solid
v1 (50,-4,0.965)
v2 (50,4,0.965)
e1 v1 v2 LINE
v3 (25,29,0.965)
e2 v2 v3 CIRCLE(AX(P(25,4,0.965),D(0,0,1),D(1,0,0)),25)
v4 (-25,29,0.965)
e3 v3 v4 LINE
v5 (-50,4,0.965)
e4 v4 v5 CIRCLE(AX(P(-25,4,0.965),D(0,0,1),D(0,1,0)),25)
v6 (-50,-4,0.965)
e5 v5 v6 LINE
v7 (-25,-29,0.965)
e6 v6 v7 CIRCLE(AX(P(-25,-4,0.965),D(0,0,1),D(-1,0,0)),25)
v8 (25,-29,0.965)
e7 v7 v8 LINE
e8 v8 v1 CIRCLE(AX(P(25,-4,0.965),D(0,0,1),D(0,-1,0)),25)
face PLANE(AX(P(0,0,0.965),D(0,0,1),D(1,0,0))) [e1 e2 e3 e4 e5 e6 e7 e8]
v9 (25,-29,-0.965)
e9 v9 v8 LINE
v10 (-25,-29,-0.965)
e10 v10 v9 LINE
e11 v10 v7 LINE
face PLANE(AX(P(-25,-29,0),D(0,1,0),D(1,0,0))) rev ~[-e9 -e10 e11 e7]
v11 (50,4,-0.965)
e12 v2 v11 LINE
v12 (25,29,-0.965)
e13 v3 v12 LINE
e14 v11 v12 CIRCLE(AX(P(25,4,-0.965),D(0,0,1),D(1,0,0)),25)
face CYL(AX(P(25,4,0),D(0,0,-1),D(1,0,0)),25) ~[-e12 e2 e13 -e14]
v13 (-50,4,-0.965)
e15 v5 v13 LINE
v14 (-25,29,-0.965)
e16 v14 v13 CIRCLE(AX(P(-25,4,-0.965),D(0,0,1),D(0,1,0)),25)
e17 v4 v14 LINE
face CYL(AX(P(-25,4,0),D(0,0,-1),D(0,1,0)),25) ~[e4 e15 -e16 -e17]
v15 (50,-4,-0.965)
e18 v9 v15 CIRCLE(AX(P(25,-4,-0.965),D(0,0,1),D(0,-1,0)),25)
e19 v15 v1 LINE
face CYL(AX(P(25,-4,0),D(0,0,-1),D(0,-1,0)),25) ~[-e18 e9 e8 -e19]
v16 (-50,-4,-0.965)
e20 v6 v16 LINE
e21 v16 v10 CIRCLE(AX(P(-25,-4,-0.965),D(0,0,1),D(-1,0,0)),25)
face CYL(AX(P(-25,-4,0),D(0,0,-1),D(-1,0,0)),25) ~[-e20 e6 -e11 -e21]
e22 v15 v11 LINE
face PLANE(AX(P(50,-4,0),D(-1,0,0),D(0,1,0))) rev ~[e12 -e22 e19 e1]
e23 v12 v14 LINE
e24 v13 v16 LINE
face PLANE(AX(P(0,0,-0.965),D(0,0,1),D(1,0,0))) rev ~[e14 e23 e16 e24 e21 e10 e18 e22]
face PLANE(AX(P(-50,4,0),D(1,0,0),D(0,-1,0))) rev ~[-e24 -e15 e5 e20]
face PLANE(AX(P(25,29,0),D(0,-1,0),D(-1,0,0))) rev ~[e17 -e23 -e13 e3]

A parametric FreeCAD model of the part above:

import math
import FreeCAD as App
import Part
import Sketcher
from FreeCAD import Vector

doc = App.newDocument("Part")
params = doc.addObject("Spreadsheet::Sheet", "Params")
for row, (alias, value) in enumerate([
    ("sketch1_radius", "25 mm"),
    ("pad1_length", "1.93 mm"),
], start=1):
    params.set(f"A{row}", alias)
    params.set(f"B{row}", "=" + value)
    params.setAlias(f"B{row}", alias)

body = doc.addObject("PartDesign::Body", "Body")

# Sketch on XY plane
sketch1 = doc.addObject("Sketcher::SketchObject", "Sketch")
body.addObject(sketch1)
sketch1.AttachmentSupport = (doc.XY_Plane, [""])
sketch1.MapMode = "FlatFace"
sketch1.addGeometry(Part.ArcOfCircle(Part.Circle(Vector(-25, -4, 0), Vector(0, 0, 1), 25), math.radians(180), math.radians(270)), False)
sketch1.addGeometry(Part.LineSegment(Vector(-25, -29, 0), Vector(25, -29, 0)), False)
sketch1.addGeometry(Part.ArcOfCircle(Part.Circle(Vector(25, -4, 0), Vector(0, 0, 1), 25), math.radians(-90), math.radians(0)), False)
sketch1.addGeometry(Part.LineSegment(Vector(50, -4, 0), Vector(50, 4, 0)), False)
sketch1.addGeometry(Part.ArcOfCircle(Part.Circle(Vector(25, 4, 0), Vector(0, 0, 1), 25), math.radians(0), math.radians(90)), False)
sketch1.addGeometry(Part.LineSegment(Vector(25, 29, 0), Vector(-25, 29, 0)), False)
sketch1.addGeometry(Part.ArcOfCircle(Part.Circle(Vector(-25, 4, 0), Vector(0, 0, 1), 25), math.radians(90), math.radians(180)), False)
sketch1.addGeometry(Part.LineSegment(Vector(-50, 4, 0), Vector(-50, -4, 0)), False)
sketch1.addConstraint(Sketcher.Constraint("Tangent", 0, 2, 1, 1))
sketch1.addConstraint(Sketcher.Constraint("Tangent", 1, 2, 2, 1))
sketch1.addConstraint(Sketcher.Constraint("Tangent", 2, 2, 3, 1))
sketch1.addConstraint(Sketcher.Constraint("Tangent", 3, 2, 4, 1))
sketch1.addConstraint(Sketcher.Constraint("Tangent", 4, 2, 5, 1))
sketch1.addConstraint(Sketcher.Constraint("Tangent", 5, 2, 6, 1))
sketch1.addConstraint(Sketcher.Constraint("Tangent", 6, 2, 7, 1))
sketch1.addConstraint(Sketcher.Constraint("Tangent", 7, 2, 0, 1))
sketch1.addConstraint(Sketcher.Constraint("Horizontal", 1))
sketch1.addConstraint(Sketcher.Constraint("Vertical", 3))
sketch1.addConstraint(Sketcher.Constraint("Horizontal", 5))
sketch1.addConstraint(Sketcher.Constraint("Vertical", 7))
sketch1.addConstraint(Sketcher.Constraint("Equal", 0, 2))
sketch1.addConstraint(Sketcher.Constraint("Equal", 2, 4))
sketch1.addConstraint(Sketcher.Constraint("Equal", 4, 6))
sketch1.addConstraint(Sketcher.Constraint("Symmetric", 0, 3, 4, 3, -1, 1))
sketch1.addConstraint(Sketcher.Constraint("Radius", 0, 25.0))
sketch1.addConstraint(Sketcher.Constraint("DistanceX", 0, 3, -1, 1, 25.0))
sketch1.addConstraint(Sketcher.Constraint("DistanceY", 0, 2, 5, 2, 58.0))
sketch1.setExpression("Constraints[16]", "Params.sketch1_radius")
pad1 = doc.addObject("PartDesign::Pad", "Pad")
body.addObject(pad1)
pad1.Profile = sketch1
pad1.setExpression("Length", "Params.pad1_length")
pad1.Midplane = True

doc.recompute()
